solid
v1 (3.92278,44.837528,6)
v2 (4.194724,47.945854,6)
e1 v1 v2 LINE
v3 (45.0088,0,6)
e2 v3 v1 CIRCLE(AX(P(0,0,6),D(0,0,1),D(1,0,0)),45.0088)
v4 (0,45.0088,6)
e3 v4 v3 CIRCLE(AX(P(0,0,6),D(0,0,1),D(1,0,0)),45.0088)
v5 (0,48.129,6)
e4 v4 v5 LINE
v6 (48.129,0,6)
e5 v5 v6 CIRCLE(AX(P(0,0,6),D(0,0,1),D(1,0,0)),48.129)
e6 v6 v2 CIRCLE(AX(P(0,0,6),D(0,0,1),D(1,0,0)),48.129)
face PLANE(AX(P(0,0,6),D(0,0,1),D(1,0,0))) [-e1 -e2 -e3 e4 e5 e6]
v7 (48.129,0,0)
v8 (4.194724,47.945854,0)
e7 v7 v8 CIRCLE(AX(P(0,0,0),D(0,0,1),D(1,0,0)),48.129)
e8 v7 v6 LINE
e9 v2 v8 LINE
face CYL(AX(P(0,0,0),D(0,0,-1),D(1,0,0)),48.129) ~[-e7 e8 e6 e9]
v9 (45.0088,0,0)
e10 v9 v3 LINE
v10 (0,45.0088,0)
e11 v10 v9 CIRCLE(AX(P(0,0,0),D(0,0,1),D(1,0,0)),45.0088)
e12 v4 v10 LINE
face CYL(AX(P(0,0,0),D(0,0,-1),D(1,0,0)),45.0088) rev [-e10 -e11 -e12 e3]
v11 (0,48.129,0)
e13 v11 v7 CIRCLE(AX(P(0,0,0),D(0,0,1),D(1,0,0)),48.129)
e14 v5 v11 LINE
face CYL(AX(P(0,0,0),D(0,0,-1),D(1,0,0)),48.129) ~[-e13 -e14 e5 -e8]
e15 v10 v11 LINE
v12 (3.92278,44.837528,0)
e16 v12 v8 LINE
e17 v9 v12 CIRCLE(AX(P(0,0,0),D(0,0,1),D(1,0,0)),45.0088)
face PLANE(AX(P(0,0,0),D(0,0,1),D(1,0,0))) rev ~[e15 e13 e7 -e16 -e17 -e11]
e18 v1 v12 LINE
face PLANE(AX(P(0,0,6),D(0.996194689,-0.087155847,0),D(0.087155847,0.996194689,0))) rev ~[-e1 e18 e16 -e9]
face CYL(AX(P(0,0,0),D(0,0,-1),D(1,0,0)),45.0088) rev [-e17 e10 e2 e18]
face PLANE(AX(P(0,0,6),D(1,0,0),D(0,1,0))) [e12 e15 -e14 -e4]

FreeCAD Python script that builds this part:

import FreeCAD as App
import Part
import Sketcher
from FreeCAD import Vector
Q = App.Units.Quantity


def add_polygon(sketch, points):
    """Adds a closed chain of lines whose ends are joined by coincident constraints."""
    first, n = sketch.GeometryCount, len(points)
    for a, b in zip(points, points[1:] + points[:1]):
        sketch.addGeometry(Part.LineSegment(App.Vector(*a, 0), App.Vector(*b, 0)), False)
    for i in range(n):
        sketch.addConstraint(Sketcher.Constraint("Coincident", first + i, 2, first + (i + 1) % n, 1))

doc = App.newDocument("Part")
body = doc.addObject("PartDesign::Body", "Body")

# Sketch on XY plane
sketch1 = body.newObject("Sketcher::SketchObject", "Sketch")
sketch1.AttachmentSupport = (doc.getObject("XY_Plane"), [""])
sketch1.MapMode = "FlatFace"
sketch1.addGeometry([
    Part.Circle(Vector(0, 0, 0), Vector(0, 0, 1), 48),
    Part.Circle(Vector(0, 0, 0), Vector(0, 0, 1), 45),
], False)
sketch1.addConstraint([
    Sketcher.Constraint("Coincident", 0, 3, -1, 1),
    Sketcher.Constraint("Coincident", 1, 3, -1, 1),
    Sketcher.Constraint("Diameter", 0, 96.258),
    Sketcher.Constraint("Diameter", 1, 90.0176),
])
pad1 = body.newObject("PartDesign::Pad", "Pad")
pad1.Profile = sketch1
pad1.Length = 6

# Sketch on XY plane
sketch2 = body.newObject("Sketcher::SketchObject", "Sketch001")
sketch2.AttachmentSupport = (doc.getObject("XY_Plane"), [""])
sketch2.MapMode = "FlatFace"
sketch2.AttachmentOffset = App.Placement(Vector(0, 0, 6), App.Rotation())
add_polygon(sketch2, [(0, 63.8), (0, 0), (5.4, 61.8), (1, 63.4)])  # lines 0-3
sketch2.addConstraint([
    Sketcher.Constraint("Vertical", 0),
    Sketcher.Constraint("Coincident", 0, 2, -1, 1),
    Sketcher.Constraint("Parallel", 2, 3),
    Sketcher.Constraint("Angle", 1, Q("85 deg")),
    Sketcher.Constraint("DistanceY", 0, 2, 0, 1, 63.8312),
    Sketcher.Constraint("DistanceY", 1, 2, 2, 2, 1.673),
    Sketcher.Constraint("Distance", 1, 62.0085),
])
pocket1 = body.newObject("PartDesign::Pocket", "Pocket")
pocket1.Profile = sketch2
pocket1.Length = 10

doc.recompute()
